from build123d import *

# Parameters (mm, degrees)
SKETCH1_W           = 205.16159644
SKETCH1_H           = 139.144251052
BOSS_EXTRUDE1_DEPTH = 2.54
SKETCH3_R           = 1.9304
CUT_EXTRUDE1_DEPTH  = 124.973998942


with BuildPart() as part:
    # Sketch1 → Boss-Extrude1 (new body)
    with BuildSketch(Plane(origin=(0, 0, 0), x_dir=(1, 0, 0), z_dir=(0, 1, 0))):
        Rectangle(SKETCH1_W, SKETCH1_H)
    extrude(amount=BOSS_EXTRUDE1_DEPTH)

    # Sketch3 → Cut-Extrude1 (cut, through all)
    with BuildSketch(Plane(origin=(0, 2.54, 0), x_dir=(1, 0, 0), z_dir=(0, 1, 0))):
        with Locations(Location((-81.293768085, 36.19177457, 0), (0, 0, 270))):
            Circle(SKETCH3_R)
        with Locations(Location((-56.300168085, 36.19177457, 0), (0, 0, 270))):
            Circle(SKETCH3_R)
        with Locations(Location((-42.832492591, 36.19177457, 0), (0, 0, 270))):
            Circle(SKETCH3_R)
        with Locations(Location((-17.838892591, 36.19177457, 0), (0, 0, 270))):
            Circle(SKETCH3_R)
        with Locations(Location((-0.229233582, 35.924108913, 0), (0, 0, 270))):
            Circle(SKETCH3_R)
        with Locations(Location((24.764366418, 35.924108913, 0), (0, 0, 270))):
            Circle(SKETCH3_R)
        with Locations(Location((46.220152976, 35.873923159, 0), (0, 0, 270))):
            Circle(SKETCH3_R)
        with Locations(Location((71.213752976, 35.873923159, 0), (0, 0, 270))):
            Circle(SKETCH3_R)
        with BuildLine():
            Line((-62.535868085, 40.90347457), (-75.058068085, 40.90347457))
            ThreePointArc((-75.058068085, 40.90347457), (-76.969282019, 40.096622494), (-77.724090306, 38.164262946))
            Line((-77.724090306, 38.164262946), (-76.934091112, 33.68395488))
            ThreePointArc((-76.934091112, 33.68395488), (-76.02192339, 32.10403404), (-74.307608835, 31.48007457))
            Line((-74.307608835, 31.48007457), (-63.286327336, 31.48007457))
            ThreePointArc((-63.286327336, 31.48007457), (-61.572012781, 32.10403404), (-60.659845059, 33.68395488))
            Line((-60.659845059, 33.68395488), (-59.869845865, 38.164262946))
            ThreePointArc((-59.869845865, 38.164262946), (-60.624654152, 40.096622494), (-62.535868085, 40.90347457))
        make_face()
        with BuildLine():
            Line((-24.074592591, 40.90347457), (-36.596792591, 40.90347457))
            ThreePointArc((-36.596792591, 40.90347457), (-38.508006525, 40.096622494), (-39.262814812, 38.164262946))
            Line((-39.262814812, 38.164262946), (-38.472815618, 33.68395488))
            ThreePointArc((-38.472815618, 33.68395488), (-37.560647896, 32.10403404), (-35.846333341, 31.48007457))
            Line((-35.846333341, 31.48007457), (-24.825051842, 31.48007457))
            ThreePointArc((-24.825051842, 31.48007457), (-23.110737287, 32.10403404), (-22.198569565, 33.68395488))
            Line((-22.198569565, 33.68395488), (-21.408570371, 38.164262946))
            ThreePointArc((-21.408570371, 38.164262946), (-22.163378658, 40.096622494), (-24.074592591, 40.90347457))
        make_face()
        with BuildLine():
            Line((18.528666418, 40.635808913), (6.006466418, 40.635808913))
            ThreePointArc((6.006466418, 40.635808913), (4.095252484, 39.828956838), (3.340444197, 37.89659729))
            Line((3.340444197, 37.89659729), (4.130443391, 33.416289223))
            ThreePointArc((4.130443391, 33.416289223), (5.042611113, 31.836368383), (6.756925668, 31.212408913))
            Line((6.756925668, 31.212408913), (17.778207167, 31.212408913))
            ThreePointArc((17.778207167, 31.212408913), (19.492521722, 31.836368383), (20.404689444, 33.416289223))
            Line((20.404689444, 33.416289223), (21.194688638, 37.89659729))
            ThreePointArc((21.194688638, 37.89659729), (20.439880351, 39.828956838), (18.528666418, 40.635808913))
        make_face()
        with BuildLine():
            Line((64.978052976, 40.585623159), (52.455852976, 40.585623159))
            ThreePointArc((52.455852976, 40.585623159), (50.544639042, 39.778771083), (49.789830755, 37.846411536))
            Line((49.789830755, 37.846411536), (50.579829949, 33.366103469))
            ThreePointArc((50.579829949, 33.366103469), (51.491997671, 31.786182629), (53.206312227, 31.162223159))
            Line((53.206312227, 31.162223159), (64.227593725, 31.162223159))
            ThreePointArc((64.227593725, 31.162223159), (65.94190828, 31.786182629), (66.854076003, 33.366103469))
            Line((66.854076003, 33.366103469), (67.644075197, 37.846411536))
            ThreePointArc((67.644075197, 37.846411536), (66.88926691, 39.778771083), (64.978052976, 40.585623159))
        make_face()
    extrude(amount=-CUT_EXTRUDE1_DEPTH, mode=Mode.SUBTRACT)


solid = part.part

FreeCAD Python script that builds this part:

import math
import FreeCAD as App
import Part
import Sketcher
from FreeCAD import Vector
Q = App.Units.Quantity


def add_polygon(sketch, points):
    """Adds a closed chain of lines whose ends are joined by coincident constraints."""
    first, n = sketch.GeometryCount, len(points)
    for a, b in zip(points, points[1:] + points[:1]):
        sketch.addGeometry(Part.LineSegment(App.Vector(*a, 0), App.Vector(*b, 0)), False)
    for i in range(n):
        sketch.addConstraint(Sketcher.Constraint("Coincident", first + i, 2, first + (i + 1) % n, 1))

doc = App.newDocument("Part")
params = doc.addObject("Spreadsheet::Sheet", "Params")
for row, (alias, value) in enumerate([
    ("pad1_length", "0.1 in"),
    ("sketch2_diameter", "0.152 in"),
    ("sketch2_radius", "0.105 in"),
    ("sketch2_width", "0.493 in"),
], start=1):
    params.set(f"A{row}", alias)
    params.set(f"B{row}", "=" + value)
    params.setAlias(f"B{row}", alias)

body = doc.addObject("PartDesign::Body", "Body")

# Sketch on XZ plane
sketch1 = doc.addObject("Sketcher::SketchObject", "Sketch")
body.addObject(sketch1)
sketch1.AttachmentSupport = (doc.XZ_Plane, [""])
sketch1.MapMode = "FlatFace"
add_polygon(sketch1, [(-103, -70), (-103, 70), (103, 70), (103, -70)])  # lines 0-3
sketch1.addConstraint([
    Sketcher.Constraint("Vertical", 0),
    Sketcher.Constraint("Horizontal", 1),
    Sketcher.Constraint("Vertical", 2),
    Sketcher.Constraint("Horizontal", 3),
    Sketcher.Constraint("Symmetric", 0, 2, 2, 2, -1, 1),
    Sketcher.Constraint("DistanceY", 0, 1, 0, 2, Q("139.144251 mm")),
    Sketcher.Constraint("DistanceX", 0, 2, -1, 1, Q("102.580798 mm")),
])
pad1 = doc.addObject("PartDesign::Pad", "Pad")
body.addObject(pad1)
pad1.Profile = sketch1
pad1.setExpression("Length", "Params.pad1_length")
pad1.Reversed = True

# Sketch on XZ plane
sketch2 = doc.addObject("Sketcher::SketchObject", "Sketch001")
body.addObject(sketch2)
sketch2.AttachmentSupport = (doc.XZ_Plane, [""])
sketch2.MapMode = "FlatFace"
sketch2.AttachmentOffset = App.Placement(Vector(0, 0, -0.1 * 25.4), App.Rotation())
sketch2.addGeometry([
    Part.Circle(Vector(-81.3, -36.2, 0), Vector(0, 0, 1), 1.9),  # 0
    Part.Circle(Vector(-56.3, -36.2, 0), Vector(0, 0, 1), 1.9),  # 1
    Part.Circle(Vector(-42.8, -36.2, 0), Vector(0, 0, 1), 1.9),  # 2
    Part.Circle(Vector(-17.8, -36.2, 0), Vector(0, 0, 1), 1.9),  # 3
    Part.Circle(Vector(-0.2, -35.9, 0), Vector(0, 0, 1), 1.9),  # 4
    Part.Circle(Vector(24.8, -35.9, 0), Vector(0, 0, 1), 1.9),  # 5
    Part.Circle(Vector(46.2, -35.9, 0), Vector(0, 0, 1), 1.9),  # 6
    Part.Circle(Vector(71.2, -35.9, 0), Vector(0, 0, 1), 1.9),  # 7
    Part.LineSegment(Vector(-62.5, -40.9, 0), Vector(-75.1, -40.9, 0)),  # 8
    Part.ArcOfCircle(Part.Circle(Vector(-75.1, -38.2, 0), Vector(0, 0, 1), 2.7), math.radians(178), math.radians(270)),  # 9
    Part.LineSegment(Vector(-77.7, -38.2, 0), Vector(-76.9, -33.7, 0)),  # 10
    Part.ArcOfCircle(Part.Circle(Vector(-74.3, -34.1, 0), Vector(0, 0, 1), 2.7), math.radians(90), math.radians(170)),  # 11
    Part.LineSegment(Vector(-74.3, -31.5, 0), Vector(-63.3, -31.5, 0)),  # 12
    Part.ArcOfCircle(Part.Circle(Vector(-63.3, -34.1, 0), Vector(0, 0, 1), 2.7), math.radians(10), math.radians(90)),  # 13
    Part.LineSegment(Vector(-60.7, -33.7, 0), Vector(-59.9, -38.2, 0)),  # 14
    Part.ArcOfCircle(Part.Circle(Vector(-62.5, -38.2, 0), Vector(0, 0, 1), 2.7), math.radians(-90), math.radians(2)),  # 15
    Part.LineSegment(Vector(-24.1, -40.9, 0), Vector(-36.6, -40.9, 0)),  # 16
    Part.ArcOfCircle(Part.Circle(Vector(-36.6, -38.2, 0), Vector(0, 0, 1), 2.7), math.radians(178), math.radians(270)),  # 17
    Part.LineSegment(Vector(-39.3, -38.2, 0), Vector(-38.5, -33.7, 0)),  # 18
    Part.ArcOfCircle(Part.Circle(Vector(-35.8, -34.1, 0), Vector(0, 0, 1), 2.7), math.radians(90), math.radians(170)),  # 19
    Part.LineSegment(Vector(-35.8, -31.5, 0), Vector(-24.8, -31.5, 0)),  # 20
    Part.ArcOfCircle(Part.Circle(Vector(-24.8, -34.1, 0), Vector(0, 0, 1), 2.7), math.radians(10), math.radians(90)),  # 21
    Part.LineSegment(Vector(-22.2, -33.7, 0), Vector(-21.4, -38.2, 0)),  # 22
    Part.ArcOfCircle(Part.Circle(Vector(-24.1, -38.2, 0), Vector(0, 0, 1), 2.7), math.radians(-90), math.radians(2)),  # 23
    Part.LineSegment(Vector(18.5, -40.6, 0), Vector(6, -40.6, 0)),  # 24
    Part.ArcOfCircle(Part.Circle(Vector(6, -38, 0), Vector(0, 0, 1), 2.7), math.radians(178), math.radians(270)),  # 25
    Part.LineSegment(Vector(3.3, -37.9, 0), Vector(4.1, -33.4, 0)),  # 26
    Part.ArcOfCircle(Part.Circle(Vector(6.8, -33.9, 0), Vector(0, 0, 1), 2.7), math.radians(90), math.radians(170)),  # 27
    Part.LineSegment(Vector(6.8, -31.2, 0), Vector(17.8, -31.2, 0)),  # 28
    Part.ArcOfCircle(Part.Circle(Vector(17.8, -33.9, 0), Vector(0, 0, 1), 2.7), math.radians(10), math.radians(90)),  # 29
    Part.LineSegment(Vector(20.4, -33.4, 0), Vector(21.2, -37.9, 0)),  # 30
    Part.ArcOfCircle(Part.Circle(Vector(18.5, -38, 0), Vector(0, 0, 1), 2.7), math.radians(-90), math.radians(2)),  # 31
    Part.LineSegment(Vector(65, -40.6, 0), Vector(52.5, -40.6, 0)),  # 32
    Part.ArcOfCircle(Part.Circle(Vector(52.5, -37.9, 0), Vector(0, 0, 1), 2.7), math.radians(178), math.radians(270)),  # 33
    Part.LineSegment(Vector(49.8, -37.8, 0), Vector(50.6, -33.4, 0)),  # 34
    Part.ArcOfCircle(Part.Circle(Vector(53.2, -33.8, 0), Vector(0, 0, 1), 2.7), math.radians(90), math.radians(170)),  # 35
    Part.LineSegment(Vector(53.2, -31.2, 0), Vector(64.2, -31.2, 0)),  # 36
    Part.ArcOfCircle(Part.Circle(Vector(64.2, -33.8, 0), Vector(0, 0, 1), 2.7), math.radians(10), math.radians(90)),  # 37
    Part.LineSegment(Vector(66.9, -33.4, 0), Vector(67.6, -37.8, 0)),  # 38
    Part.ArcOfCircle(Part.Circle(Vector(65, -37.9, 0), Vector(0, 0, 1), 2.7), math.radians(-90), math.radians(2)),  # 39
], False)
sketch2.addConstraint([
    Sketcher.Constraint("Tangent", 8, 2, 9, 2),
    Sketcher.Constraint("Coincident", 9, 1, 10, 1),
    Sketcher.Constraint("Tangent", 10, 2, 11, 2),
    Sketcher.Constraint("Tangent", 11, 1, 12, 1),
    Sketcher.Constraint("Tangent", 12, 2, 13, 2),
    Sketcher.Constraint("Tangent", 13, 1, 14, 1),
    Sketcher.Constraint("Coincident", 14, 2, 15, 2),
    Sketcher.Constraint("Tangent", 15, 1, 8, 1),
    Sketcher.Constraint("Tangent", 16, 2, 17, 2),
    Sketcher.Constraint("Coincident", 17, 1, 18, 1),
    Sketcher.Constraint("Tangent", 18, 2, 19, 2),
    Sketcher.Constraint("Tangent", 19, 1, 20, 1),
    Sketcher.Constraint("Tangent", 20, 2, 21, 2),
    Sketcher.Constraint("Tangent", 21, 1, 22, 1),
    Sketcher.Constraint("Coincident", 22, 2, 23, 2),
    Sketcher.Constraint("Tangent", 23, 1, 16, 1),
    Sketcher.Constraint("Tangent", 24, 2, 25, 2),
    Sketcher.Constraint("Coincident", 25, 1, 26, 1),
    Sketcher.Constraint("Tangent", 26, 2, 27, 2),
    Sketcher.Constraint("Tangent", 27, 1, 28, 1),
    Sketcher.Constraint("Tangent", 28, 2, 29, 2),
    Sketcher.Constraint("Tangent", 29, 1, 30, 1),
    Sketcher.Constraint("Coincident", 30, 2, 31, 2),
    Sketcher.Constraint("Tangent", 31, 1, 24, 1),
    Sketcher.Constraint("Tangent", 32, 2, 33, 2),
    Sketcher.Constraint("Coincident", 33, 1, 34, 1),
    Sketcher.Constraint("Tangent", 34, 2, 35, 2),
    Sketcher.Constraint("Tangent", 35, 1, 36, 1),
    Sketcher.Constraint("Tangent", 36, 2, 37, 2),
    Sketcher.Constraint("Tangent", 37, 1, 38, 1),
    Sketcher.Constraint("Coincident", 38, 2, 39, 2),
    Sketcher.Constraint("Tangent", 39, 1, 32, 1),
    Sketcher.Constraint("Horizontal", 8),
    Sketcher.Constraint("Horizontal", 12),
    Sketcher.Constraint("Horizontal", 16),
    Sketcher.Constraint("Horizontal", 20),
    Sketcher.Constraint("Horizontal", 24),
    Sketcher.Constraint("Horizontal", 28),
    Sketcher.Constraint("Horizontal", 32),
    Sketcher.Constraint("Horizontal", 36),
    Sketcher.Constraint("Equal", 0, 1),
    Sketcher.Constraint("Equal", 1, 2),
    Sketcher.Constraint("Equal", 2, 3),
    Sketcher.Constraint("Equal", 3, 4),
    Sketcher.Constraint("Equal", 4, 5),
    Sketcher.Constraint("Equal", 5, 6),
    Sketcher.Constraint("Equal", 6, 7),
    Sketcher.Constraint("Equal", 9, 11),
    Sketcher.Constraint("Equal", 11, 13),
    Sketcher.Constraint("Equal", 13, 15),
    Sketcher.Constraint("Equal", 15, 17),
    Sketcher.Constraint("Equal", 17, 19),
    Sketcher.Constraint("Equal", 19, 21),
    Sketcher.Constraint("Equal", 21, 23),
    Sketcher.Constraint("Equal", 23, 25),
    Sketcher.Constraint("Equal", 25, 27),
    Sketcher.Constraint("Equal", 27, 29),
    Sketcher.Constraint("Equal", 29, 31),
    Sketcher.Constraint("Equal", 31, 33),
    Sketcher.Constraint("Equal", 33, 35),
    Sketcher.Constraint("Equal", 35, 37),
    Sketcher.Constraint("Equal", 37, 39),
    Sketcher.Constraint("Parallel", 10, 18),
    Sketcher.Constraint("Parallel", 14, 22),
    Sketcher.Constraint("Parallel", 18, 26),
    Sketcher.Constraint("Parallel", 22, 30),
    Sketcher.Constraint("Parallel", 26, 34),
    Sketcher.Constraint("Parallel", 30, 38),
    Sketcher.Constraint("Horizontal", 0, 3, 1, 3),
    Sketcher.Constraint("Horizontal", 1, 3, 2, 3),
    Sketcher.Constraint("Horizontal", 2, 3, 3, 3),
    Sketcher.Constraint("Horizontal", 4, 3, 5, 3),
    Sketcher.Constraint("Horizontal", 6, 3, 7, 3),
    Sketcher.Constraint("Horizontal", 15, 3, 17, 3),
    Sketcher.Constraint("Horizontal", 13, 3, 19, 3),
    Sketcher.Constraint("Horizontal", 10, 2, 13, 1),
    Sketcher.Constraint("Horizontal", 9, 1, 14, 2),
    Sketcher.Constraint("Horizontal", 14, 2, 17, 1),
    Sketcher.Constraint("Horizontal", 17, 1, 22, 2),
    Sketcher.Constraint("Horizontal", 25, 1, 30, 2),
    Sketcher.Constraint("Horizontal", 33, 1, 38, 2),
    Sketcher.Constraint("Equal", 8, 16),
    Sketcher.Constraint("Equal", 16, 24),
    Sketcher.Constraint("Equal", 20, 28),
    Sketcher.Constraint("Equal", 24, 32),
    Sketcher.Constraint("Equal", 28, 36),
    Sketcher.Constraint("Equal", 22, 26),
    Sketcher.Constraint("Equal", 30, 34),
    Sketcher.Constraint("Diameter", 0, Q("0.152 in")),
    Sketcher.Constraint("Angle", 10, Q("80 deg")),
    Sketcher.Constraint("Radius", 9, Q("0.105 in")),
    Sketcher.Constraint("DistanceX", 8, 2, 8, 1, Q("0.493 in")),
    Sketcher.Constraint("DistanceX", 0, 3, 1, 3, Q("0.984 in")),
    Sketcher.Constraint("DistanceX", 2, 3, 3, 3, Q("0.984 in")),
    Sketcher.Constraint("DistanceX", 4, 3, 5, 3, Q("0.984 in")),
    Sketcher.Constraint("DistanceX", 6, 3, 7, 3, Q("0.984 in")),
    Sketcher.Constraint("DistanceY", 9, 3, 11, 3, Q("0.161 in")),
    Sketcher.Constraint("DistanceX", 0, 3, 9, 3, Q("0.2455 in")),
    Sketcher.Constraint("DistanceY", 9, 3, 0, 3, Q("0.0805 in")),
    Sketcher.Constraint("DistanceX", 2, 3, 17, 3, Q("0.2455 in")),
    Sketcher.Constraint("DistanceX", 4, 3, 25, 3, Q("0.2455 in")),
    Sketcher.Constraint("DistanceY", 25, 3, 4, 3, Q("0.0805 in")),
    Sketcher.Constraint("DistanceX", 6, 3, 33, 3, Q("0.2455 in")),
    Sketcher.Constraint("DistanceY", 33, 3, 6, 3, Q("0.0805 in")),
    Sketcher.Constraint("DistanceX", 12, 1, 12, 2, Q("11.021281 mm")),
    Sketcher.Constraint("DistanceX", 0, 3, -1, 1, Q("81.293768 mm")),
    Sketcher.Constraint("DistanceY", 4, 3, -1, 1, Q("35.924109 mm")),
    Sketcher.Constraint("DistanceX", 21, 3, -1, 1, Q("24.825052 mm")),
    Sketcher.Constraint("DistanceX", -1, 1, 29, 1, Q("20.404689 mm")),
    Sketcher.Constraint("DistanceX", -1, 1, 33, 1, Q("49.789831 mm")),
    Sketcher.Constraint("DistanceY", 33, 1, -1, 1, Q("37.846412 mm")),
    Sketcher.Constraint("DistanceY", 3, 3, 6, 3, Q("0.317851 mm")),
])
sketch2.setExpression("Constraints[88]", "Params.sketch2_diameter")
sketch2.setExpression("Constraints[90]", "Params.sketch2_radius")
sketch2.setExpression("Constraints[91]", "Params.sketch2_width")
pocket1 = doc.addObject("PartDesign::Pocket", "Pocket")
body.addObject(pocket1)
pocket1.Profile = sketch2
pocket1.Type = "ThroughAll"
pocket1.Reversed = True

doc.recompute()
